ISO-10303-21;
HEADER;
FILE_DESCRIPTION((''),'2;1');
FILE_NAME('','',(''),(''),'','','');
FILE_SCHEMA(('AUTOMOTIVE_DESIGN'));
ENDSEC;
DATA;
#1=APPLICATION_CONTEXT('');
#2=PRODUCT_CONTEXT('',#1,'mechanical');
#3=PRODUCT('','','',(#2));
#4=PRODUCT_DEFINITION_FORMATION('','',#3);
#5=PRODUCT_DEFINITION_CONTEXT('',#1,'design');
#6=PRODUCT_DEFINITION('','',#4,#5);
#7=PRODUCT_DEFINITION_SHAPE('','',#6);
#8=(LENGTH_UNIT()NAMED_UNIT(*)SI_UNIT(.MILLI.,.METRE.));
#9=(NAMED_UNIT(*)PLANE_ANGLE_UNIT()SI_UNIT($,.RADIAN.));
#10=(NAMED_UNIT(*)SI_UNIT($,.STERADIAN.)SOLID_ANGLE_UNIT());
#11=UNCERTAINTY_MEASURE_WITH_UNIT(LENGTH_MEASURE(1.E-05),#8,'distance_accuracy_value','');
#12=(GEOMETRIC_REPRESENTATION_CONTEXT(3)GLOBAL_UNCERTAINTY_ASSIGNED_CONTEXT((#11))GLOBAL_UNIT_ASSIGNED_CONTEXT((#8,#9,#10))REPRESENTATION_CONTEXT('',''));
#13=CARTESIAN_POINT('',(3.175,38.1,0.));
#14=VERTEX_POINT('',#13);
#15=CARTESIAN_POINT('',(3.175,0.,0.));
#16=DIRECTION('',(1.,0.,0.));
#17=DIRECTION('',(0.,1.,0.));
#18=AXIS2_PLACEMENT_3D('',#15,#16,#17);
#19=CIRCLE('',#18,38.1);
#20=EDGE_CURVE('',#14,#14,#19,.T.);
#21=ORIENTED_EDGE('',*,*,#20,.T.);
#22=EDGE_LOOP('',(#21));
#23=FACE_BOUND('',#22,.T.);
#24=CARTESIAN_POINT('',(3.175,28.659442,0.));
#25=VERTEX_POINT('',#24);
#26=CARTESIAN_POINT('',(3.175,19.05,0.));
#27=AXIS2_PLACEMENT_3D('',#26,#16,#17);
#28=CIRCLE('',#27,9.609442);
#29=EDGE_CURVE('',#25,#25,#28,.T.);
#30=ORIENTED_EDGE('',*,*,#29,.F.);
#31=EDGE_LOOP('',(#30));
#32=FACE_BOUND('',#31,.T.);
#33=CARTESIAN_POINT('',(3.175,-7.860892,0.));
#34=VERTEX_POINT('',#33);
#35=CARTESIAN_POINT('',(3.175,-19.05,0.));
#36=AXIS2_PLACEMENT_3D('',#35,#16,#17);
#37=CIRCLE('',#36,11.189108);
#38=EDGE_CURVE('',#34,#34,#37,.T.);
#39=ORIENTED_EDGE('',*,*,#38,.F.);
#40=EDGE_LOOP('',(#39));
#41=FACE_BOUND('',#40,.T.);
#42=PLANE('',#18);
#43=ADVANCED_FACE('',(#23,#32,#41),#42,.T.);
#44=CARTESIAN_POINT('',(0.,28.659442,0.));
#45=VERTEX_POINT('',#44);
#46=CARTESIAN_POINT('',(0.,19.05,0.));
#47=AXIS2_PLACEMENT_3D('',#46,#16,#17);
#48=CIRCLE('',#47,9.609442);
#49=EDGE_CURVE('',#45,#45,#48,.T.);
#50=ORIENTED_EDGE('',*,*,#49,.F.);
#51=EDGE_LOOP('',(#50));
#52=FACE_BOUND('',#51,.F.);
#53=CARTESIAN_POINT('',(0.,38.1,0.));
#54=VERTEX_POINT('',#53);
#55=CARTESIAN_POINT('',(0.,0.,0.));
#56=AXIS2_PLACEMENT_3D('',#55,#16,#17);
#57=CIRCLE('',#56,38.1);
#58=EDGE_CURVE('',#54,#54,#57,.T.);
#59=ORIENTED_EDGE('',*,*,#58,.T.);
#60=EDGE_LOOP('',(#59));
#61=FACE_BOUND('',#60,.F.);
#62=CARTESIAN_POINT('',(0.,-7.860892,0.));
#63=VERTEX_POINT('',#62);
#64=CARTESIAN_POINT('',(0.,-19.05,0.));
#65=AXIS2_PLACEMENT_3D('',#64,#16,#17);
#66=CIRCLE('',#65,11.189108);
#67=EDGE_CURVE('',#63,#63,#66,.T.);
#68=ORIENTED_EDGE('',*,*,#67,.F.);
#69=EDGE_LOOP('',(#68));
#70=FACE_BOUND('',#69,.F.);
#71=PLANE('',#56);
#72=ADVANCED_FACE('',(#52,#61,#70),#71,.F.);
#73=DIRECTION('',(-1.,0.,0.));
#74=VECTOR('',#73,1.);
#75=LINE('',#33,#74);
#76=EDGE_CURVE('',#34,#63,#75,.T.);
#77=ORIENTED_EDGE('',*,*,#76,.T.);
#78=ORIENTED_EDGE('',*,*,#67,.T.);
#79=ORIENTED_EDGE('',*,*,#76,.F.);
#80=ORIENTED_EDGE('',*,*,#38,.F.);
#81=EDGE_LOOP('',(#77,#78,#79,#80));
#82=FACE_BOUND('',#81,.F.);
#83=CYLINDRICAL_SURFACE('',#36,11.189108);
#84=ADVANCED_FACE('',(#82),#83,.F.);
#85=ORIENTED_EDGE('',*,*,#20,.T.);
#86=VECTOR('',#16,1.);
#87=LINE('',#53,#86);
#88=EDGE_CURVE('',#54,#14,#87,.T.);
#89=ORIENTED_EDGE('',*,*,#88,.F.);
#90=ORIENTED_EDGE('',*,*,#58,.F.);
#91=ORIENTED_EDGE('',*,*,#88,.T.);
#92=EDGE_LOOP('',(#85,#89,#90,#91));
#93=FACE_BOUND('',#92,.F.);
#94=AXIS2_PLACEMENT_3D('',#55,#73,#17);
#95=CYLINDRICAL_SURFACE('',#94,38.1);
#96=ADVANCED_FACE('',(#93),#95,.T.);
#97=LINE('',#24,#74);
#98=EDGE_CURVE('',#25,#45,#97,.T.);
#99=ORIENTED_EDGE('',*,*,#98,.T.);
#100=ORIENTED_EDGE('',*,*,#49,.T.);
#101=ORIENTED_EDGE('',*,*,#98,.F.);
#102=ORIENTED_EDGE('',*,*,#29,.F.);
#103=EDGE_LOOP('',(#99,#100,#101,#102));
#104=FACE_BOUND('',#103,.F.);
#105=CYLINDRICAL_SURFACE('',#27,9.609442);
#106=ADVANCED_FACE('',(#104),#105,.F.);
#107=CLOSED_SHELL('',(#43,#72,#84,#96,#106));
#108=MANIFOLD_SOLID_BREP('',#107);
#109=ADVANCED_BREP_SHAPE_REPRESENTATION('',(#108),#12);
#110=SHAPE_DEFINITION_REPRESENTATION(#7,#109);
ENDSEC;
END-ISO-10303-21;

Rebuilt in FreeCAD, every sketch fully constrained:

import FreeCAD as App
import Part
import Sketcher
from FreeCAD import Vector
Q = App.Units.Quantity

doc = App.newDocument("Part")
body = doc.addObject("PartDesign::Body", "Body")

# Sketch on YZ plane
sketch1 = body.newObject("Sketcher::SketchObject", "Sketch")
sketch1.AttachmentSupport = (doc.getObject("YZ_Plane"), [""])
sketch1.MapMode = "FlatFace"
sketch1.addGeometry(Part.Circle(Vector(0, 0, 0), Vector(0, 0, 1), 38), False)
sketch1.addConstraint([
    Sketcher.Constraint("Coincident", 0, 3, -1, 1),
    Sketcher.Constraint("Diameter", 0, Q("3 in")),
])
pad1 = body.newObject("PartDesign::Pad", "Pad")
pad1.Profile = sketch1
pad1.Length = Q("0.125 in")

# Sketch on YZ plane
sketch2 = body.newObject("Sketcher::SketchObject", "Sketch001")
sketch2.AttachmentSupport = (doc.getObject("YZ_Plane"), [""])
sketch2.MapMode = "FlatFace"
sketch2.AttachmentOffset = App.Placement(Vector(0, 0, 0.125 * 25.4), App.Rotation())
sketch2.addGeometry([
    Part.Circle(Vector(-19, 0, 0), Vector(0, 0, 1), 11),
    Part.Circle(Vector(19, 0, 0), Vector(0, 0, 1), 10),
], False)
sketch2.addConstraint([
    Sketcher.Constraint("Symmetric", 0, 3, 1, 3, -1, 1),
    Sketcher.Constraint("PointOnObject", 0, 3, -1),
    Sketcher.Constraint("DistanceX", 0, 3, 1, 3, Q("1.5 in")),
    Sketcher.Constraint("Diameter", 0, Q("22.378216 mm")),
    Sketcher.Constraint("Diameter", 1, Q("19.218884 mm")),
])
pocket1 = body.newObject("PartDesign::Pocket", "Pocket")
pocket1.Profile = sketch2
pocket1.Length = Q("1 in")

doc.recompute()
